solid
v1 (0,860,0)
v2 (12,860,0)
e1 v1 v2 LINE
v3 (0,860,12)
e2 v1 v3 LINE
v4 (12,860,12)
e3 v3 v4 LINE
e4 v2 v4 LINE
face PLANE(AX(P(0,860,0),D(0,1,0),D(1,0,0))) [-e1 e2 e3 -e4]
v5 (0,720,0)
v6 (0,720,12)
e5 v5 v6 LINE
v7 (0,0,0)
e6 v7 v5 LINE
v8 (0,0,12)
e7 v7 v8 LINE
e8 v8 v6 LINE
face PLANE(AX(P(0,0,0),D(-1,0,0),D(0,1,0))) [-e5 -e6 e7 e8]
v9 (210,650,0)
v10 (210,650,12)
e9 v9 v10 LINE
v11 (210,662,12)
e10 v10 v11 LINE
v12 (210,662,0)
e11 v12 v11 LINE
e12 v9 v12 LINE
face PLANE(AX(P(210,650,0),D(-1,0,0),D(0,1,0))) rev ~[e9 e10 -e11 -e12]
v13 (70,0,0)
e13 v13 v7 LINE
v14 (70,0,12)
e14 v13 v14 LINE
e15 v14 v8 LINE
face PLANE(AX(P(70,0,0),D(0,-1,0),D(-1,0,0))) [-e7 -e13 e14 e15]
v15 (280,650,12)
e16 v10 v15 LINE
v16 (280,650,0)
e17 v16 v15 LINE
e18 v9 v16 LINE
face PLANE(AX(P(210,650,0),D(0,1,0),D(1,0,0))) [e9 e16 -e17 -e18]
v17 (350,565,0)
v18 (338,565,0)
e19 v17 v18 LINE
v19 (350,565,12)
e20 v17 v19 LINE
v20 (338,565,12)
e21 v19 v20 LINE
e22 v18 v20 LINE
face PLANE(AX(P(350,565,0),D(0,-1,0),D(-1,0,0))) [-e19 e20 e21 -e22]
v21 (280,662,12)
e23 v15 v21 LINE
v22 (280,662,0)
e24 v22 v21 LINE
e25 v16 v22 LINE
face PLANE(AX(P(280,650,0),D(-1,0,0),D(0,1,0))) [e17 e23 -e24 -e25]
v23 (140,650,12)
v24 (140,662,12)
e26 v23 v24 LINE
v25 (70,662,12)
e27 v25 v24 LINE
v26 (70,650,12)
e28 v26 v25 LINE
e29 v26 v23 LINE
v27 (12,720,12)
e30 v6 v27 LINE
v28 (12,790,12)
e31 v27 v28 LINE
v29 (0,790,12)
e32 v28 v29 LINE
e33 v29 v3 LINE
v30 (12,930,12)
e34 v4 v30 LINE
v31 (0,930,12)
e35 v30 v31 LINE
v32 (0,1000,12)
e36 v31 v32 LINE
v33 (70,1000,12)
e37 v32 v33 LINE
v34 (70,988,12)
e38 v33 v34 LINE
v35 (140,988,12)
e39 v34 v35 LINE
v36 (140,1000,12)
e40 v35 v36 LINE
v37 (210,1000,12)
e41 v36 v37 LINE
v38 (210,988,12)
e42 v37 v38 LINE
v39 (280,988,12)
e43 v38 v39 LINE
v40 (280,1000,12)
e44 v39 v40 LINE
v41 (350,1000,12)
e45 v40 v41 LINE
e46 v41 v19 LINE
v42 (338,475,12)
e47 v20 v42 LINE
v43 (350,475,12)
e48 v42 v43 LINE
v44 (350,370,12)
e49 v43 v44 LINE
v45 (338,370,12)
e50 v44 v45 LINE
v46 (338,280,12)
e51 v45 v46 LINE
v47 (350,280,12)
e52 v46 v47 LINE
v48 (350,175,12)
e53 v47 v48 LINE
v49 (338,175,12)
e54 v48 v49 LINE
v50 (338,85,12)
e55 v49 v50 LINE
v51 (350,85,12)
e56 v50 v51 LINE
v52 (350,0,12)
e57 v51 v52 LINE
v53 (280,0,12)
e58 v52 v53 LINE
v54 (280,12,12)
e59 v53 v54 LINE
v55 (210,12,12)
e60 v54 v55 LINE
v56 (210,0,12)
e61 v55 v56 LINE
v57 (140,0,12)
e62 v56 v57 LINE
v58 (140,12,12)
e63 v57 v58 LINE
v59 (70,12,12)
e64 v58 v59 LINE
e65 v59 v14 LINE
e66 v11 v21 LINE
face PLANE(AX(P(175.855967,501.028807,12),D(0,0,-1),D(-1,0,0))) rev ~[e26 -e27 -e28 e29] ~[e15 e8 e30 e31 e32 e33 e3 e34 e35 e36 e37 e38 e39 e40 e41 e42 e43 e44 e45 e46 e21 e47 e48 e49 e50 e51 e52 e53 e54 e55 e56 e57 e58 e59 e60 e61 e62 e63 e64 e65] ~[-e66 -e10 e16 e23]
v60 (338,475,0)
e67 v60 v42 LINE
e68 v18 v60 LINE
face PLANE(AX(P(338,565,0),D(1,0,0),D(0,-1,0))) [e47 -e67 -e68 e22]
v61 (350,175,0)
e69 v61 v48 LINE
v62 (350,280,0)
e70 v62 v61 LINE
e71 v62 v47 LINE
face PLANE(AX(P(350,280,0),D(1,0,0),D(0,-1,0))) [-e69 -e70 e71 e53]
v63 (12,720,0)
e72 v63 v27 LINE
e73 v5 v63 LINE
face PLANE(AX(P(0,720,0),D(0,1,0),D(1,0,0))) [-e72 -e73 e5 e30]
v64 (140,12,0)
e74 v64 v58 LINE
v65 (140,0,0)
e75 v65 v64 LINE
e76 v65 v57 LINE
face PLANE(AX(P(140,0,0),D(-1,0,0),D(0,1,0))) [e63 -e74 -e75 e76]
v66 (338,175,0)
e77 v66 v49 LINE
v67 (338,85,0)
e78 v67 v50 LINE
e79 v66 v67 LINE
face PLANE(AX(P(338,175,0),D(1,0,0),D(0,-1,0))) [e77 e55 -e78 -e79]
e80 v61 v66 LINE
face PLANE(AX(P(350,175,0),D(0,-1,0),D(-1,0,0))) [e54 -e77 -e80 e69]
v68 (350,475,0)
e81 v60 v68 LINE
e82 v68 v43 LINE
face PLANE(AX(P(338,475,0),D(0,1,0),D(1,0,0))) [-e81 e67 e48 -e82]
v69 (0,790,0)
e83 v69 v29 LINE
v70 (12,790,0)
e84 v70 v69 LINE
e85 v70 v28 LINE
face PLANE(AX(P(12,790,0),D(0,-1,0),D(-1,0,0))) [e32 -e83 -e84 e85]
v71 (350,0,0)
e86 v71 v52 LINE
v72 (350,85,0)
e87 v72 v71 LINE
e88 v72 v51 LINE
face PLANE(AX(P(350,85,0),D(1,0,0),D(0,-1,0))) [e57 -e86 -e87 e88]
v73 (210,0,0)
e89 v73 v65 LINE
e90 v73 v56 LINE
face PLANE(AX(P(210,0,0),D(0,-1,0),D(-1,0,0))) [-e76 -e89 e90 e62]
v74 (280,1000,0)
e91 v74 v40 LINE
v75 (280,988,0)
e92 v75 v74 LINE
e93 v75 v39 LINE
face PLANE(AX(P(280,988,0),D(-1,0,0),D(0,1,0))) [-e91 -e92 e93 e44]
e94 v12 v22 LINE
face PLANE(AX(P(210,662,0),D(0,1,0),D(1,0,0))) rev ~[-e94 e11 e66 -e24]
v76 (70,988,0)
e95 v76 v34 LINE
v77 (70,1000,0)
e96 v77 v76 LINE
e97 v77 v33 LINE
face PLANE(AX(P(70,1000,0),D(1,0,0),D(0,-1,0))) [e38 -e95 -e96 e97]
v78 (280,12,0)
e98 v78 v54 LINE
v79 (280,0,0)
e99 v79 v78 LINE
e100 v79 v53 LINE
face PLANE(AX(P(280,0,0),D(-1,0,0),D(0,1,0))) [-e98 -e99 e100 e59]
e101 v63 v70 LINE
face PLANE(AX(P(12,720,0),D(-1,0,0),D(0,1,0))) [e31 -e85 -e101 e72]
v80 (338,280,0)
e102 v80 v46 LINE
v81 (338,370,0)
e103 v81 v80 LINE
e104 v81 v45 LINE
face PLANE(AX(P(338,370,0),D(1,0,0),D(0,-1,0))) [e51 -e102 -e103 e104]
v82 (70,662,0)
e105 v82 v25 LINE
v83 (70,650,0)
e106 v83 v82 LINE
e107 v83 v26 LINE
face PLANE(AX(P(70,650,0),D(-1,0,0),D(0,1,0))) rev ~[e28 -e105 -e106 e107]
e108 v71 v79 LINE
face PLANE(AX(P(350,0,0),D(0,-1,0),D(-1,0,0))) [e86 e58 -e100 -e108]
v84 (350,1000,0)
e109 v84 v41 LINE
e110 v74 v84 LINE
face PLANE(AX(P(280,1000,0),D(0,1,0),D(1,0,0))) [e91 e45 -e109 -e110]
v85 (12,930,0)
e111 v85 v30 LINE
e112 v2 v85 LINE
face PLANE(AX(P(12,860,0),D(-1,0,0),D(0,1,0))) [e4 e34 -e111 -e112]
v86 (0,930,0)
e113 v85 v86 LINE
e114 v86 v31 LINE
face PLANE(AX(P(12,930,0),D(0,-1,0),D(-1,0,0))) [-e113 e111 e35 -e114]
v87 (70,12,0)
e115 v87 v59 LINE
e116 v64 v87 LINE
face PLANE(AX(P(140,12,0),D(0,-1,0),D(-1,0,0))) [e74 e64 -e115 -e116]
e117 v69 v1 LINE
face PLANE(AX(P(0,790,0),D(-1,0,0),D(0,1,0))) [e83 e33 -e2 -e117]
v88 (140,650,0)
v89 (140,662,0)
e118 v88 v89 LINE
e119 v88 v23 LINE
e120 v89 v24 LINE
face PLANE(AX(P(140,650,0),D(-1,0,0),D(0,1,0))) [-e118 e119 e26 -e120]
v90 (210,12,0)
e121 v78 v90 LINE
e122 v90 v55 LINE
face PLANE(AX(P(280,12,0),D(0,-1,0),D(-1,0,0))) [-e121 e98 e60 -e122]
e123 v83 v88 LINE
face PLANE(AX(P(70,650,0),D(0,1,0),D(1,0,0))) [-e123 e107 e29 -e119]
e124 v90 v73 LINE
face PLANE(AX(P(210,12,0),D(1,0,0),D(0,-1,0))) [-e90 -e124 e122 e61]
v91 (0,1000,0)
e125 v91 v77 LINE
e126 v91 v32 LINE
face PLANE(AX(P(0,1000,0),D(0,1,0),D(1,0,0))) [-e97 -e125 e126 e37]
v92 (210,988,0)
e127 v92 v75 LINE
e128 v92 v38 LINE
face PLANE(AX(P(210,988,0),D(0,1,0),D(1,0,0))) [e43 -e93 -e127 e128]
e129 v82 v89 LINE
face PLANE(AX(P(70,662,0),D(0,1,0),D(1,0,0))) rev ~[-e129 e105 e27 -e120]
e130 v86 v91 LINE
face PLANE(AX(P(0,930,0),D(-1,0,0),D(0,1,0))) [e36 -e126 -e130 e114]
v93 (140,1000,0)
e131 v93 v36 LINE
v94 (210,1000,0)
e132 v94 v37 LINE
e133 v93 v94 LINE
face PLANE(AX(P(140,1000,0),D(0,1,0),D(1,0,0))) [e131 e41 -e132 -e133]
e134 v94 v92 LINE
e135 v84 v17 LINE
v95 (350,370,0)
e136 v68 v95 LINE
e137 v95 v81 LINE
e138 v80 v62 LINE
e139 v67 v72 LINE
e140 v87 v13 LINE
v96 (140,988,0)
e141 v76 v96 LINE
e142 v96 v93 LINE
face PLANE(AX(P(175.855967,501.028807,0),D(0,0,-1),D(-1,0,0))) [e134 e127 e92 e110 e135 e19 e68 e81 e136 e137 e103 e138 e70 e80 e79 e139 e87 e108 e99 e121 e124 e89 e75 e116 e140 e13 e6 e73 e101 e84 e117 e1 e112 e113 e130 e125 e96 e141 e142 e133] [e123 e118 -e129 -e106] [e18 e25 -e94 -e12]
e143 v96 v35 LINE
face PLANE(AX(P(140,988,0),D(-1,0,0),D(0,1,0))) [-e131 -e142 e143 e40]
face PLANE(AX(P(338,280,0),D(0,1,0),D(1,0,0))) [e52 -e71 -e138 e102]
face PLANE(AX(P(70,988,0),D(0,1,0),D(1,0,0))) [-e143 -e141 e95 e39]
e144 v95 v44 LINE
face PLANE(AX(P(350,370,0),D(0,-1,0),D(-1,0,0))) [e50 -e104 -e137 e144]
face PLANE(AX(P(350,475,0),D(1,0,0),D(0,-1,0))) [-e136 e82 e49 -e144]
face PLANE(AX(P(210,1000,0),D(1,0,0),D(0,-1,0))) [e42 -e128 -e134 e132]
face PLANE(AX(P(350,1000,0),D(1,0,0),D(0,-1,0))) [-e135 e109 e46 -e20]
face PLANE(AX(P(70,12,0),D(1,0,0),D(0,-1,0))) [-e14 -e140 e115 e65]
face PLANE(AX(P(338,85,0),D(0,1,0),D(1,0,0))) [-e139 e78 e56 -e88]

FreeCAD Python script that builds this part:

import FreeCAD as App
import Part
import Sketcher

V = App.Vector

doc = App.newDocument("Part")
body = doc.addObject("PartDesign::Body", "Body")

# Sketch on XY plane
sketch1 = body.newObject("Sketcher::SketchObject", "Sketch")
sketch1.AttachmentSupport = (doc.getObject("XY_Plane"), [""])
sketch1.MapMode = "FlatFace"
sketch1.addGeometry([
    Part.LineSegment(V(350, 1000, 0), V(280, 1000, 0)),  # 0
    Part.LineSegment(V(280, 1000, 0), V(280, 988, 0)),  # 1
    Part.LineSegment(V(280, 988, 0), V(210, 988, 0)),  # 2
    Part.LineSegment(V(210, 988, 0), V(210, 1000, 0)),  # 3
    Part.LineSegment(V(210, 1000, 0), V(140, 1000, 0)),  # 4
    Part.LineSegment(V(140, 1000, 0), V(140, 988, 0)),  # 5
    Part.LineSegment(V(140, 988, 0), V(70, 988, 0)),  # 6
    Part.LineSegment(V(70, 988, 0), V(70, 1000, 0)),  # 7
    Part.LineSegment(V(70, 1000, 0), V(0, 1000, 0)),  # 8
    Part.LineSegment(V(0, 1000, 0), V(0, 930, 0)),  # 9
    Part.LineSegment(V(0, 930, 0), V(12, 930, 0)),  # 10
    Part.LineSegment(V(12, 930, 0), V(12, 860, 0)),  # 11
    Part.LineSegment(V(12, 860, 0), V(0, 860, 0)),  # 12
    Part.LineSegment(V(0, 860, 0), V(0, 790, 0)),  # 13
    Part.LineSegment(V(0, 790, 0), V(12, 790, 0)),  # 14
    Part.LineSegment(V(12, 790, 0), V(12, 720, 0)),  # 15
    Part.LineSegment(V(12, 720, 0), V(0, 720, 0)),  # 16
    Part.LineSegment(V(0, 720, 0), V(0, 0, 0)),  # 17
    Part.LineSegment(V(0, 0, 0), V(70, 0, 0)),  # 18
    Part.LineSegment(V(70, 0, 0), V(70, 12, 0)),  # 19
    Part.LineSegment(V(70, 12, 0), V(140, 12, 0)),  # 20
    Part.LineSegment(V(140, 12, 0), V(140, 0, 0)),  # 21
    Part.LineSegment(V(140, 0, 0), V(210, 0, 0)),  # 22
    Part.LineSegment(V(210, 0, 0), V(210, 12, 0)),  # 23
    Part.LineSegment(V(210, 12, 0), V(280, 12, 0)),  # 24
    Part.LineSegment(V(280, 12, 0), V(280, 0, 0)),  # 25
    Part.LineSegment(V(280, 0, 0), V(350, 0, 0)),  # 26
    Part.LineSegment(V(350, 0, 0), V(350, 85, 0)),  # 27
    Part.LineSegment(V(350, 85, 0), V(338, 85, 0)),  # 28
    Part.LineSegment(V(338, 85, 0), V(338, 175, 0)),  # 29
    Part.LineSegment(V(338, 175, 0), V(350, 175, 0)),  # 30
    Part.LineSegment(V(350, 175, 0), V(350, 280, 0)),  # 31
    Part.LineSegment(V(350, 280, 0), V(338, 280, 0)),  # 32
    Part.LineSegment(V(338, 280, 0), V(338, 370, 0)),  # 33
    Part.LineSegment(V(338, 370, 0), V(350, 370, 0)),  # 34
    Part.LineSegment(V(350, 370, 0), V(350, 475, 0)),  # 35
    Part.LineSegment(V(350, 475, 0), V(338, 475, 0)),  # 36
    Part.LineSegment(V(338, 475, 0), V(338, 565, 0)),  # 37
    Part.LineSegment(V(338, 565, 0), V(350, 565, 0)),  # 38
    Part.LineSegment(V(350, 565, 0), V(350, 1000, 0)),  # 39
    Part.LineSegment(V(210, 650, 0), V(210, 662, 0)),  # 40
    Part.LineSegment(V(210, 662, 0), V(280, 662, 0)),  # 41
    Part.LineSegment(V(280, 662, 0), V(280, 650, 0)),  # 42
    Part.LineSegment(V(280, 650, 0), V(210, 650, 0)),  # 43
    Part.LineSegment(V(70, 650, 0), V(70, 662, 0)),  # 44
    Part.LineSegment(V(70, 662, 0), V(140, 662, 0)),  # 45
    Part.LineSegment(V(140, 662, 0), V(140, 650, 0)),  # 46
    Part.LineSegment(V(140, 650, 0), V(70, 650, 0)),  # 47
], False)
sketch1.addConstraint([
    Sketcher.Constraint("Coincident", 0, 2, 1, 1),
    Sketcher.Constraint("Coincident", 1, 2, 2, 1),
    Sketcher.Constraint("Coincident", 2, 2, 3, 1),
    Sketcher.Constraint("Coincident", 3, 2, 4, 1),
    Sketcher.Constraint("Coincident", 4, 2, 5, 1),
    Sketcher.Constraint("Coincident", 5, 2, 6, 1),
    Sketcher.Constraint("Coincident", 6, 2, 7, 1),
    Sketcher.Constraint("Coincident", 7, 2, 8, 1),
    Sketcher.Constraint("Coincident", 8, 2, 9, 1),
    Sketcher.Constraint("Coincident", 9, 2, 10, 1),
    Sketcher.Constraint("Coincident", 10, 2, 11, 1),
    Sketcher.Constraint("Coincident", 11, 2, 12, 1),
    Sketcher.Constraint("Coincident", 12, 2, 13, 1),
    Sketcher.Constraint("Coincident", 13, 2, 14, 1),
    Sketcher.Constraint("Coincident", 14, 2, 15, 1),
    Sketcher.Constraint("Coincident", 15, 2, 16, 1),
    Sketcher.Constraint("Coincident", 16, 2, 17, 1),
    Sketcher.Constraint("Coincident", 17, 2, 18, 1),
    Sketcher.Constraint("Coincident", 18, 2, 19, 1),
    Sketcher.Constraint("Coincident", 19, 2, 20, 1),
    Sketcher.Constraint("Coincident", 20, 2, 21, 1),
    Sketcher.Constraint("Coincident", 21, 2, 22, 1),
    Sketcher.Constraint("Coincident", 22, 2, 23, 1),
    Sketcher.Constraint("Coincident", 23, 2, 24, 1),
    Sketcher.Constraint("Coincident", 24, 2, 25, 1),
    Sketcher.Constraint("Coincident", 25, 2, 26, 1),
    Sketcher.Constraint("Coincident", 26, 2, 27, 1),
    Sketcher.Constraint("Coincident", 27, 2, 28, 1),
    Sketcher.Constraint("Coincident", 28, 2, 29, 1),
    Sketcher.Constraint("Coincident", 29, 2, 30, 1),
    Sketcher.Constraint("Coincident", 30, 2, 31, 1),
    Sketcher.Constraint("Coincident", 31, 2, 32, 1),
    Sketcher.Constraint("Coincident", 32, 2, 33, 1),
    Sketcher.Constraint("Coincident", 33, 2, 34, 1),
    Sketcher.Constraint("Coincident", 34, 2, 35, 1),
    Sketcher.Constraint("Coincident", 35, 2, 36, 1),
    Sketcher.Constraint("Coincident", 36, 2, 37, 1),
    Sketcher.Constraint("Coincident", 37, 2, 38, 1),
    Sketcher.Constraint("Coincident", 38, 2, 39, 1),
    Sketcher.Constraint("Coincident", 39, 2, 0, 1),
    Sketcher.Constraint("Coincident", 40, 2, 41, 1),
    Sketcher.Constraint("Coincident", 41, 2, 42, 1),
    Sketcher.Constraint("Coincident", 42, 2, 43, 1),
    Sketcher.Constraint("Coincident", 43, 2, 40, 1),
    Sketcher.Constraint("Coincident", 44, 2, 45, 1),
    Sketcher.Constraint("Coincident", 45, 2, 46, 1),
    Sketcher.Constraint("Coincident", 46, 2, 47, 1),
    Sketcher.Constraint("Coincident", 47, 2, 44, 1),
    Sketcher.Constraint("Horizontal", 0),
    Sketcher.Constraint("Vertical", 1),
    Sketcher.Constraint("Horizontal", 2),
    Sketcher.Constraint("Vertical", 3),
    Sketcher.Constraint("Horizontal", 4),
    Sketcher.Constraint("Vertical", 5),
    Sketcher.Constraint("Horizontal", 6),
    Sketcher.Constraint("Vertical", 7),
    Sketcher.Constraint("Horizontal", 8),
    Sketcher.Constraint("Vertical", 9),
    Sketcher.Constraint("Horizontal", 10),
    Sketcher.Constraint("Vertical", 11),
    Sketcher.Constraint("Horizontal", 12),
    Sketcher.Constraint("Vertical", 13),
    Sketcher.Constraint("Horizontal", 14),
    Sketcher.Constraint("Vertical", 15),
    Sketcher.Constraint("Horizontal", 16),
    Sketcher.Constraint("Vertical", 17),
    Sketcher.Constraint("Horizontal", 18),
    Sketcher.Constraint("Vertical", 19),
    Sketcher.Constraint("Horizontal", 20),
    Sketcher.Constraint("Vertical", 21),
    Sketcher.Constraint("Horizontal", 22),
    Sketcher.Constraint("Vertical", 23),
    Sketcher.Constraint("Horizontal", 24),
    Sketcher.Constraint("Vertical", 25),
    Sketcher.Constraint("Horizontal", 26),
    Sketcher.Constraint("Vertical", 27),
    Sketcher.Constraint("Horizontal", 28),
    Sketcher.Constraint("Vertical", 29),
    Sketcher.Constraint("Horizontal", 30),
    Sketcher.Constraint("Vertical", 31),
    Sketcher.Constraint("Horizontal", 32),
    Sketcher.Constraint("Vertical", 33),
    Sketcher.Constraint("Horizontal", 34),
    Sketcher.Constraint("Vertical", 35),
    Sketcher.Constraint("Horizontal", 36),
    Sketcher.Constraint("Vertical", 37),
    Sketcher.Constraint("Horizontal", 38),
    Sketcher.Constraint("Vertical", 39),
    Sketcher.Constraint("Vertical", 40),
    Sketcher.Constraint("Horizontal", 41),
    Sketcher.Constraint("Vertical", 42),
    Sketcher.Constraint("Horizontal", 43),
    Sketcher.Constraint("Vertical", 44),
    Sketcher.Constraint("Horizontal", 45),
    Sketcher.Constraint("Vertical", 46),
    Sketcher.Constraint("Horizontal", 47),
    Sketcher.Constraint("Coincident", 17, 2, -1, 1),
    Sketcher.Constraint("PointOnObject", 8, 2, -2),
    Sketcher.Constraint("PointOnObject", 12, 2, -2),
    Sketcher.Constraint("PointOnObject", 21, 2, -1),
    Sketcher.Constraint("PointOnObject", 25, 2, -1),
    Sketcher.Constraint("Horizontal", 0, 2, 3, 2),
    Sketcher.Constraint("Horizontal", 2, 2, 5, 2),
    Sketcher.Constraint("Horizontal", 4, 2, 7, 2),
    Sketcher.Constraint("Horizontal", 20, 2, 23, 2),
    Sketcher.Constraint("Horizontal", 41, 2, 44, 2),
    Sketcher.Constraint("Horizontal", 43, 2, 46, 2),
    Sketcher.Constraint("Vertical", 11, 2, 14, 2),
    Sketcher.Constraint("Vertical", 7, 2, 18, 2),
    Sketcher.Constraint("Vertical", 5, 2, 20, 2),
    Sketcher.Constraint("Vertical", 3, 2, 22, 2),
    Sketcher.Constraint("Vertical", 1, 2, 24, 2),
    Sketcher.Constraint("Vertical", 27, 2, 30, 2),
    Sketcher.Constraint("Vertical", 29, 2, 32, 2),
    Sketcher.Constraint("Vertical", 31, 2, 34, 2),
    Sketcher.Constraint("Vertical", 33, 2, 36, 2),
    Sketcher.Constraint("Vertical", 35, 2, 38, 2),
    Sketcher.Constraint("Vertical", 23, 2, 40, 2),
    Sketcher.Constraint("Vertical", 25, 2, 41, 2),
    Sketcher.Constraint("Vertical", 19, 2, 44, 2),
    Sketcher.Constraint("Vertical", 21, 2, 45, 2),
    Sketcher.Constraint("Equal", 0, 2),
    Sketcher.Constraint("Equal", 2, 4),
    Sketcher.Constraint("Equal", 4, 6),
    Sketcher.Constraint("Equal", 6, 8),
    Sketcher.Constraint("Equal", 16, 28),
    Sketcher.Constraint("Equal", 38, 1),
    Sketcher.Constraint("Equal", 47, 9),
    Sketcher.Constraint("Equal", 9, 11),
    Sketcher.Constraint("Equal", 11, 13),
    Sketcher.Constraint("Equal", 13, 15),
    Sketcher.Constraint("Equal", 7, 19),
    Sketcher.Constraint("Equal", 29, 33),
    Sketcher.Constraint("Equal", 31, 35),
    Sketcher.Constraint("Equal", 33, 37),
    Sketcher.Constraint("Equal", 25, 40),
    Sketcher.Constraint("DistanceX", 0, 2, 0, 1, 70.0),
    Sketcher.Constraint("DistanceX", 10, 1, 10, 2, 12.0),
    Sketcher.Constraint("DistanceY", 17, 2, 17, 1, 720.0),
    Sketcher.Constraint("DistanceY", 27, 1, 27, 2, 85.0),
    Sketcher.Constraint("DistanceY", 29, 1, 29, 2, 90.0),
    Sketcher.Constraint("DistanceY", 31, 1, 31, 2, 105.0),
    Sketcher.Constraint("DistanceY", -1, 1, 40, 2, 662.0),
])
pad1 = body.newObject("PartDesign::Pad", "Pad")
pad1.Profile = sketch1
pad1.Length = 12

doc.recompute()
